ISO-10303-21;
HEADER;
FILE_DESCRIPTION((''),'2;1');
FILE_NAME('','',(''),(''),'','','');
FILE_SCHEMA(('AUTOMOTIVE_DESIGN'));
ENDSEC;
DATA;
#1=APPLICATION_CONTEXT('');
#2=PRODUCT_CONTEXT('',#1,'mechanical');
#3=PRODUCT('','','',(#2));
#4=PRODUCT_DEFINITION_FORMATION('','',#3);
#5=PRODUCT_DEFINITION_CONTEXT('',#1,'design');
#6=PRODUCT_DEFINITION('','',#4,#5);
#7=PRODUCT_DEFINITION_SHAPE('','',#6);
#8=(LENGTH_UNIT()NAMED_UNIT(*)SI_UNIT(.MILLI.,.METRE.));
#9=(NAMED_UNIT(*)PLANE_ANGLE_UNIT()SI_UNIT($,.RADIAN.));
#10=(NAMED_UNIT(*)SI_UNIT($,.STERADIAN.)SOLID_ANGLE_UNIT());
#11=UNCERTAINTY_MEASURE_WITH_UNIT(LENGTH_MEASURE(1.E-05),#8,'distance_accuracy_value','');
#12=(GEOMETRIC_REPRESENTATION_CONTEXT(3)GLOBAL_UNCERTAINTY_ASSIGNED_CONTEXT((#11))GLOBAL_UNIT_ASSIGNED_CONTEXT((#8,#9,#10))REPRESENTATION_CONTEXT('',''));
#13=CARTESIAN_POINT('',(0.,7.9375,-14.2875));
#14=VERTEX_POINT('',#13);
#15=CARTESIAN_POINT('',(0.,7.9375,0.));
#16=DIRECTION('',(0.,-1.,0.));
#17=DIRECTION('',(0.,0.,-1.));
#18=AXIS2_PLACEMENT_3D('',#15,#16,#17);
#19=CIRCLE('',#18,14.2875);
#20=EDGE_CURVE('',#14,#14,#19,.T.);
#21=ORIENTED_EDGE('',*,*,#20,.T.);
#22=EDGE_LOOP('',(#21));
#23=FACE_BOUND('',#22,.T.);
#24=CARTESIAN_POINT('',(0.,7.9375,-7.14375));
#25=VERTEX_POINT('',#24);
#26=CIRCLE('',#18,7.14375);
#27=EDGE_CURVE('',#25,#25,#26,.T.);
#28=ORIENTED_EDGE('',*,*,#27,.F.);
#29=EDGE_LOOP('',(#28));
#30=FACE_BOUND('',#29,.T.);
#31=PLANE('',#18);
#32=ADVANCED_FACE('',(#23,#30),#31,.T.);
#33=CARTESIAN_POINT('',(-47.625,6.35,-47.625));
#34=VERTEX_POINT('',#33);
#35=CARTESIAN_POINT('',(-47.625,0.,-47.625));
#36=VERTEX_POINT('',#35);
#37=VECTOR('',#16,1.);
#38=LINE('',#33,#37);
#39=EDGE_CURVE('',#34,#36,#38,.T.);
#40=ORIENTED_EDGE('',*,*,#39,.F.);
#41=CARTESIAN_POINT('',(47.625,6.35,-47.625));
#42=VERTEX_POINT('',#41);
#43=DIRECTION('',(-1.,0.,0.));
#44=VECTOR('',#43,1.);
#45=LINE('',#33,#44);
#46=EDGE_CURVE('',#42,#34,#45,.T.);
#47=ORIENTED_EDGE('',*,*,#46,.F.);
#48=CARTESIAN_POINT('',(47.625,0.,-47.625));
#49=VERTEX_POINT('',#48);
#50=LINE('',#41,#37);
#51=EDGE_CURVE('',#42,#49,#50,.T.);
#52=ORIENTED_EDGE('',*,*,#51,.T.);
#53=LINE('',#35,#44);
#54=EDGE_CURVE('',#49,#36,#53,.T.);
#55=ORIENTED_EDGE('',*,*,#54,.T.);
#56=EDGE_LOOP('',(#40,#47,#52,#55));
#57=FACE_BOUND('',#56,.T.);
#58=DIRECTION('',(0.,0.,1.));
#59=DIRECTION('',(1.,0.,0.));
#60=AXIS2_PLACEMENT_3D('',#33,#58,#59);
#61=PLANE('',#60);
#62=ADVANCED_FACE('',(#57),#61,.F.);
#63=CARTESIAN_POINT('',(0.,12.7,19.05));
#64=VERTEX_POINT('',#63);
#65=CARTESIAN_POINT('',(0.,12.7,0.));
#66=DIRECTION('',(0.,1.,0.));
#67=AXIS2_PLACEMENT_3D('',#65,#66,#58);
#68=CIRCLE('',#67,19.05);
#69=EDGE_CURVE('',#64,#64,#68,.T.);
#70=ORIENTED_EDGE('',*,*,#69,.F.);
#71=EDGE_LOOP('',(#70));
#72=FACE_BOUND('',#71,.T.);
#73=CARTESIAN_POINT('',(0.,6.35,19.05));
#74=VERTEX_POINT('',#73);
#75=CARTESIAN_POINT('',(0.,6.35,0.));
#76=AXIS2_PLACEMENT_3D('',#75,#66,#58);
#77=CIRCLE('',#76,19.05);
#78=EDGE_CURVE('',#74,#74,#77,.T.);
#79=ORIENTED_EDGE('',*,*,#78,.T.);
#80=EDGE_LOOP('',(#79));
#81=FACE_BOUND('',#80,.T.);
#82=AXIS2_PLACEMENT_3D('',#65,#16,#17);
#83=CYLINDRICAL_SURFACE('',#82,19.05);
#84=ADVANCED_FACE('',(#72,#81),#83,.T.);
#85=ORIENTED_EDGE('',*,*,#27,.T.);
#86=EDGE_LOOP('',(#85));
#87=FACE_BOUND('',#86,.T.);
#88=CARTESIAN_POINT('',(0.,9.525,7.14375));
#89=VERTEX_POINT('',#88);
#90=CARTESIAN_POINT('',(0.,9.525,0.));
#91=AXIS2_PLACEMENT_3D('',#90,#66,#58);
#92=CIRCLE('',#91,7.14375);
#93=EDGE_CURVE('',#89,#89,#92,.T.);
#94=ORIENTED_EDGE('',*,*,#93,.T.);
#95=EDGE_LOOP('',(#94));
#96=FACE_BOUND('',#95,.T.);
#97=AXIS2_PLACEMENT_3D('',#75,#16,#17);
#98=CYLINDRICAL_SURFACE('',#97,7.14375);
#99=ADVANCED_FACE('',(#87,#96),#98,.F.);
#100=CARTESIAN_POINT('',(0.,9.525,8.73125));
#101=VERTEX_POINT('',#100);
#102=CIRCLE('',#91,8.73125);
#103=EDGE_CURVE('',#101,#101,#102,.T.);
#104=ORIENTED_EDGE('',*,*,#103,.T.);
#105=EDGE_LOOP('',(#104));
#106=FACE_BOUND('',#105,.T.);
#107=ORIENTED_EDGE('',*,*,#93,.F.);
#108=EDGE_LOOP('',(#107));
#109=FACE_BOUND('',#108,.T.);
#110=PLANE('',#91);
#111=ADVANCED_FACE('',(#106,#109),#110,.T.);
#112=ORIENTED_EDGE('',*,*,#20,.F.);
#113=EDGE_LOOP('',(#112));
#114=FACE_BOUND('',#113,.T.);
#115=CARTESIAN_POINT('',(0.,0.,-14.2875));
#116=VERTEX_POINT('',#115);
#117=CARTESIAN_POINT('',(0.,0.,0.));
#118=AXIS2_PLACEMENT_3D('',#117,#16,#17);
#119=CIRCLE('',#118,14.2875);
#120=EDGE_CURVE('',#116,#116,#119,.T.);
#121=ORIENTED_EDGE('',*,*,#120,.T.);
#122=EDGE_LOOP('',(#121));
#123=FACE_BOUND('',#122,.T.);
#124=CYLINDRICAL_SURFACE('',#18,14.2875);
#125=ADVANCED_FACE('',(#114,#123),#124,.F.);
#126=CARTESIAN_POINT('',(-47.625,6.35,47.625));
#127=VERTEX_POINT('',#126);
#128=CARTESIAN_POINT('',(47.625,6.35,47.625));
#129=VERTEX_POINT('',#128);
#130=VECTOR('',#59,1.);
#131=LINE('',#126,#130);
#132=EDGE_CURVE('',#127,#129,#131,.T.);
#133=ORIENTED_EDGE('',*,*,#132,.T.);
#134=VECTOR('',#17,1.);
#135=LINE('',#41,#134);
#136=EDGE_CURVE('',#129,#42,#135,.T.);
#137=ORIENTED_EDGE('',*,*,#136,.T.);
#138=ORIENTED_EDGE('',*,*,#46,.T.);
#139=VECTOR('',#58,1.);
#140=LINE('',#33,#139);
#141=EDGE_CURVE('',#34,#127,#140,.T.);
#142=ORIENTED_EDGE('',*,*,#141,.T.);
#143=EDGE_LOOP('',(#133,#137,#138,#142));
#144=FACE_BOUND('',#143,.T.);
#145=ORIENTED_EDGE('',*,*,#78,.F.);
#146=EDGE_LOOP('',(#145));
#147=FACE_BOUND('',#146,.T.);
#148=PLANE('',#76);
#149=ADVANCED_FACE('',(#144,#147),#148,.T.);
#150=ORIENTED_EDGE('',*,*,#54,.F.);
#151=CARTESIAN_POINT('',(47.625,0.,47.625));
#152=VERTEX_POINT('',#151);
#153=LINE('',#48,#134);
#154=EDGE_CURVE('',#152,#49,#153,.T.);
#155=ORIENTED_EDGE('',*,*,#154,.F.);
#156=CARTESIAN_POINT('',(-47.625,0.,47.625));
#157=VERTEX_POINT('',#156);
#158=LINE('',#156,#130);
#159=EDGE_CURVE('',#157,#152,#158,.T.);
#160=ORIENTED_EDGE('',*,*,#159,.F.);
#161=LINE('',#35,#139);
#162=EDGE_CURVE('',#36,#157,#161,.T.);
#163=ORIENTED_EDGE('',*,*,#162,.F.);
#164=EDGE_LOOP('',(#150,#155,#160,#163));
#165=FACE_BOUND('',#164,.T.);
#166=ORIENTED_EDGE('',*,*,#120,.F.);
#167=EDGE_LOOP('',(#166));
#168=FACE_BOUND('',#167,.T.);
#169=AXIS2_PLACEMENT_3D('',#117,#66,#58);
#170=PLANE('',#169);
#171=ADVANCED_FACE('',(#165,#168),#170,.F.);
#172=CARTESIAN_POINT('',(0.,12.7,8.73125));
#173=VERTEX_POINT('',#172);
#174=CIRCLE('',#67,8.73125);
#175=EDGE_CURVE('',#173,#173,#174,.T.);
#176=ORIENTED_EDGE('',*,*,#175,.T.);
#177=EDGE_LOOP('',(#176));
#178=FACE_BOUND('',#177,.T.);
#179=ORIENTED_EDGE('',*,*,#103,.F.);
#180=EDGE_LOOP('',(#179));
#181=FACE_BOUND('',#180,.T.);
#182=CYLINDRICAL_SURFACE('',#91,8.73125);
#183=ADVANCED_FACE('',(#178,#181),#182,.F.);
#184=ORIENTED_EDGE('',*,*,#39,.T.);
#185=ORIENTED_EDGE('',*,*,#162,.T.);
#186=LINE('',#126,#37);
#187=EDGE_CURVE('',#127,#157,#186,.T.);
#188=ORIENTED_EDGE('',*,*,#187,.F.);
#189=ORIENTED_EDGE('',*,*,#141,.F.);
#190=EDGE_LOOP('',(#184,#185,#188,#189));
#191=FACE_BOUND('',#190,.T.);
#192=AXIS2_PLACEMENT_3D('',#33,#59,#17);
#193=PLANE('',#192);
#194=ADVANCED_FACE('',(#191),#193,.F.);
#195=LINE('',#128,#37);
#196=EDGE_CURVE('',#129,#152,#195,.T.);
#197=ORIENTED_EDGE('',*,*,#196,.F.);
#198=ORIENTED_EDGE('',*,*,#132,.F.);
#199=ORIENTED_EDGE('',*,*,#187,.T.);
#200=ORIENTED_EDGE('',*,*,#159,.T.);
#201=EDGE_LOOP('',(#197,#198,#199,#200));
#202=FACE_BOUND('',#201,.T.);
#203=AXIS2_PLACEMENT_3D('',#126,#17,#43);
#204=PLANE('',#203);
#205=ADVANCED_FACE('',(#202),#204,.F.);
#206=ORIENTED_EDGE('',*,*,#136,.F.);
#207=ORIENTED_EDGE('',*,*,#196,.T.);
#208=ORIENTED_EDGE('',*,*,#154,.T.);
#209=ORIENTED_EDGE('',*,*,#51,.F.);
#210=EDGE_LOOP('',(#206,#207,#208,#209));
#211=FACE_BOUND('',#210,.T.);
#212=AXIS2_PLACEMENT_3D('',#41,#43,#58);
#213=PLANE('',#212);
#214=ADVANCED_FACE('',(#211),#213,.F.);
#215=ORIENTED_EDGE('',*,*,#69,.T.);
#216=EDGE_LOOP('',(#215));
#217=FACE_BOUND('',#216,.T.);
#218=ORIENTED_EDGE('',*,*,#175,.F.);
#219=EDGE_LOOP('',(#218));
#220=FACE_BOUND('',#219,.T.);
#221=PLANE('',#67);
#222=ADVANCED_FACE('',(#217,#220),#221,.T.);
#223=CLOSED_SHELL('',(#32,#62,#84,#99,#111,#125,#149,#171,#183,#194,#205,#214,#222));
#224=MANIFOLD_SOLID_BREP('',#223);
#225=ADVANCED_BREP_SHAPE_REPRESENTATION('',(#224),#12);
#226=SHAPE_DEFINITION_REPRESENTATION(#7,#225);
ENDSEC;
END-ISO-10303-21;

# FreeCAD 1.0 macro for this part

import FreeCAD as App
import Part
import Sketcher
Q = App.Units.Quantity


def add_polygon(sketch, points):
    """Adds a closed chain of lines whose ends are joined by coincident constraints."""
    first, n = sketch.GeometryCount, len(points)
    for a, b in zip(points, points[1:] + points[:1]):
        sketch.addGeometry(Part.LineSegment(App.Vector(*a, 0), App.Vector(*b, 0)), False)
    for i in range(n):
        sketch.addConstraint(Sketcher.Constraint("Coincident", first + i, 2, first + (i + 1) % n, 1))

doc = App.newDocument("Part")
body = doc.addObject("PartDesign::Body", "Body")

sketch1 = doc.addObject("Sketcher::SketchObject", "Sketch")
body.addObject(sketch1)
sketch1.AttachmentSupport = (doc.XZ_Plane, [""])
sketch1.MapMode = "FlatFace"
add_polygon(sketch1, [(-48, -48), (-48, 48), (48, 48), (48, -48)])
sketch1.addGeometry(Part.Circle(App.Vector(0, 0, 0), App.Vector(0, 0, 1), 7), False)
sketch1.addConstraint([
    Sketcher.Constraint("Vertical", 0),
    Sketcher.Constraint("Horizontal", 1),
    Sketcher.Constraint("Vertical", 2),
    Sketcher.Constraint("Horizontal", 3),
    Sketcher.Constraint("Coincident", 4, 3, -1, 1),
    Sketcher.Constraint("Symmetric", 0, 2, 2, 2, -1, 1),
    Sketcher.Constraint("Equal", 3, 0),
    Sketcher.Constraint("Diameter", 4, Q("0.5625 in")),
    Sketcher.Constraint("DistanceX", 1, 1, 1, 2, Q("3.75 in")),
])
pad1 = doc.addObject("PartDesign::Pad", "Pad")
body.addObject(pad1)
pad1.Profile = sketch1
pad1.Length = Q("0.25 in")
pad1.Reversed = True

sketch2 = doc.addObject("Sketcher::SketchObject", "Sketch001")
body.addObject(sketch2)
sketch2.AttachmentSupport = (doc.XZ_Plane, [""])
sketch2.MapMode = "FlatFace"
sketch2.AttachmentOffset = App.Placement(App.Vector(0, 0, -0.25 * 25.4), App.Rotation())
sketch2.addGeometry([
    Part.Circle(App.Vector(0, 0, 0), App.Vector(0, 0, 1), 19),
    Part.Circle(App.Vector(0, 0, 0), App.Vector(0, 0, 1), 7),
], False)
sketch2.addConstraint([
    Sketcher.Constraint("Coincident", 0, 3, -1, 1),
    Sketcher.Constraint("Coincident", 1, 3, -1, 1),
    Sketcher.Constraint("Diameter", 0, Q("1.5 in")),
    Sketcher.Constraint("Diameter", 1, Q("0.5625 in")),
])
pad2 = doc.addObject("PartDesign::Pad", "Pad001")
body.addObject(pad2)
pad2.Profile = sketch2
pad2.Length = Q("0.25 in")
pad2.Reversed = True

sketch3 = doc.addObject("Sketcher::SketchObject", "Sketch002")
body.addObject(sketch3)
sketch3.AttachmentSupport = (doc.XZ_Plane, [""])
sketch3.MapMode = "FlatFace"
sketch3.addGeometry(Part.Circle(App.Vector(0, 0, 0), App.Vector(0, 0, 1), 14), False)
sketch3.addConstraint([
    Sketcher.Constraint("Coincident", 0, 3, -1, 1),
    Sketcher.Constraint("Diameter", 0, Q("1.125 in")),
])
pocket1 = doc.addObject("PartDesign::Pocket", "Pocket")
body.addObject(pocket1)
pocket1.Profile = sketch3
pocket1.Length = Q("0.3125 in")

sketch4 = doc.addObject("Sketcher::SketchObject", "Sketch003")
body.addObject(sketch4)
sketch4.AttachmentSupport = (doc.XZ_Plane, [""])
sketch4.MapMode = "FlatFace"
sketch4.AttachmentOffset = App.Placement(App.Vector(0, 0, -0.5 * 25.4), App.Rotation())
sketch4.addGeometry(Part.Circle(App.Vector(0, 0, 0), App.Vector(0, 0, 1), 9), False)
sketch4.addConstraint([
    Sketcher.Constraint("Coincident", 0, 3, -1, 1),
    Sketcher.Constraint("Diameter", 0, Q("0.6875 in")),
])
pocket2 = doc.addObject("PartDesign::Pocket", "Pocket001")
body.addObject(pocket2)
pocket2.Profile = sketch4
pocket2.Length = Q("0.125 in")
pocket2.Reversed = True

doc.recompute()
